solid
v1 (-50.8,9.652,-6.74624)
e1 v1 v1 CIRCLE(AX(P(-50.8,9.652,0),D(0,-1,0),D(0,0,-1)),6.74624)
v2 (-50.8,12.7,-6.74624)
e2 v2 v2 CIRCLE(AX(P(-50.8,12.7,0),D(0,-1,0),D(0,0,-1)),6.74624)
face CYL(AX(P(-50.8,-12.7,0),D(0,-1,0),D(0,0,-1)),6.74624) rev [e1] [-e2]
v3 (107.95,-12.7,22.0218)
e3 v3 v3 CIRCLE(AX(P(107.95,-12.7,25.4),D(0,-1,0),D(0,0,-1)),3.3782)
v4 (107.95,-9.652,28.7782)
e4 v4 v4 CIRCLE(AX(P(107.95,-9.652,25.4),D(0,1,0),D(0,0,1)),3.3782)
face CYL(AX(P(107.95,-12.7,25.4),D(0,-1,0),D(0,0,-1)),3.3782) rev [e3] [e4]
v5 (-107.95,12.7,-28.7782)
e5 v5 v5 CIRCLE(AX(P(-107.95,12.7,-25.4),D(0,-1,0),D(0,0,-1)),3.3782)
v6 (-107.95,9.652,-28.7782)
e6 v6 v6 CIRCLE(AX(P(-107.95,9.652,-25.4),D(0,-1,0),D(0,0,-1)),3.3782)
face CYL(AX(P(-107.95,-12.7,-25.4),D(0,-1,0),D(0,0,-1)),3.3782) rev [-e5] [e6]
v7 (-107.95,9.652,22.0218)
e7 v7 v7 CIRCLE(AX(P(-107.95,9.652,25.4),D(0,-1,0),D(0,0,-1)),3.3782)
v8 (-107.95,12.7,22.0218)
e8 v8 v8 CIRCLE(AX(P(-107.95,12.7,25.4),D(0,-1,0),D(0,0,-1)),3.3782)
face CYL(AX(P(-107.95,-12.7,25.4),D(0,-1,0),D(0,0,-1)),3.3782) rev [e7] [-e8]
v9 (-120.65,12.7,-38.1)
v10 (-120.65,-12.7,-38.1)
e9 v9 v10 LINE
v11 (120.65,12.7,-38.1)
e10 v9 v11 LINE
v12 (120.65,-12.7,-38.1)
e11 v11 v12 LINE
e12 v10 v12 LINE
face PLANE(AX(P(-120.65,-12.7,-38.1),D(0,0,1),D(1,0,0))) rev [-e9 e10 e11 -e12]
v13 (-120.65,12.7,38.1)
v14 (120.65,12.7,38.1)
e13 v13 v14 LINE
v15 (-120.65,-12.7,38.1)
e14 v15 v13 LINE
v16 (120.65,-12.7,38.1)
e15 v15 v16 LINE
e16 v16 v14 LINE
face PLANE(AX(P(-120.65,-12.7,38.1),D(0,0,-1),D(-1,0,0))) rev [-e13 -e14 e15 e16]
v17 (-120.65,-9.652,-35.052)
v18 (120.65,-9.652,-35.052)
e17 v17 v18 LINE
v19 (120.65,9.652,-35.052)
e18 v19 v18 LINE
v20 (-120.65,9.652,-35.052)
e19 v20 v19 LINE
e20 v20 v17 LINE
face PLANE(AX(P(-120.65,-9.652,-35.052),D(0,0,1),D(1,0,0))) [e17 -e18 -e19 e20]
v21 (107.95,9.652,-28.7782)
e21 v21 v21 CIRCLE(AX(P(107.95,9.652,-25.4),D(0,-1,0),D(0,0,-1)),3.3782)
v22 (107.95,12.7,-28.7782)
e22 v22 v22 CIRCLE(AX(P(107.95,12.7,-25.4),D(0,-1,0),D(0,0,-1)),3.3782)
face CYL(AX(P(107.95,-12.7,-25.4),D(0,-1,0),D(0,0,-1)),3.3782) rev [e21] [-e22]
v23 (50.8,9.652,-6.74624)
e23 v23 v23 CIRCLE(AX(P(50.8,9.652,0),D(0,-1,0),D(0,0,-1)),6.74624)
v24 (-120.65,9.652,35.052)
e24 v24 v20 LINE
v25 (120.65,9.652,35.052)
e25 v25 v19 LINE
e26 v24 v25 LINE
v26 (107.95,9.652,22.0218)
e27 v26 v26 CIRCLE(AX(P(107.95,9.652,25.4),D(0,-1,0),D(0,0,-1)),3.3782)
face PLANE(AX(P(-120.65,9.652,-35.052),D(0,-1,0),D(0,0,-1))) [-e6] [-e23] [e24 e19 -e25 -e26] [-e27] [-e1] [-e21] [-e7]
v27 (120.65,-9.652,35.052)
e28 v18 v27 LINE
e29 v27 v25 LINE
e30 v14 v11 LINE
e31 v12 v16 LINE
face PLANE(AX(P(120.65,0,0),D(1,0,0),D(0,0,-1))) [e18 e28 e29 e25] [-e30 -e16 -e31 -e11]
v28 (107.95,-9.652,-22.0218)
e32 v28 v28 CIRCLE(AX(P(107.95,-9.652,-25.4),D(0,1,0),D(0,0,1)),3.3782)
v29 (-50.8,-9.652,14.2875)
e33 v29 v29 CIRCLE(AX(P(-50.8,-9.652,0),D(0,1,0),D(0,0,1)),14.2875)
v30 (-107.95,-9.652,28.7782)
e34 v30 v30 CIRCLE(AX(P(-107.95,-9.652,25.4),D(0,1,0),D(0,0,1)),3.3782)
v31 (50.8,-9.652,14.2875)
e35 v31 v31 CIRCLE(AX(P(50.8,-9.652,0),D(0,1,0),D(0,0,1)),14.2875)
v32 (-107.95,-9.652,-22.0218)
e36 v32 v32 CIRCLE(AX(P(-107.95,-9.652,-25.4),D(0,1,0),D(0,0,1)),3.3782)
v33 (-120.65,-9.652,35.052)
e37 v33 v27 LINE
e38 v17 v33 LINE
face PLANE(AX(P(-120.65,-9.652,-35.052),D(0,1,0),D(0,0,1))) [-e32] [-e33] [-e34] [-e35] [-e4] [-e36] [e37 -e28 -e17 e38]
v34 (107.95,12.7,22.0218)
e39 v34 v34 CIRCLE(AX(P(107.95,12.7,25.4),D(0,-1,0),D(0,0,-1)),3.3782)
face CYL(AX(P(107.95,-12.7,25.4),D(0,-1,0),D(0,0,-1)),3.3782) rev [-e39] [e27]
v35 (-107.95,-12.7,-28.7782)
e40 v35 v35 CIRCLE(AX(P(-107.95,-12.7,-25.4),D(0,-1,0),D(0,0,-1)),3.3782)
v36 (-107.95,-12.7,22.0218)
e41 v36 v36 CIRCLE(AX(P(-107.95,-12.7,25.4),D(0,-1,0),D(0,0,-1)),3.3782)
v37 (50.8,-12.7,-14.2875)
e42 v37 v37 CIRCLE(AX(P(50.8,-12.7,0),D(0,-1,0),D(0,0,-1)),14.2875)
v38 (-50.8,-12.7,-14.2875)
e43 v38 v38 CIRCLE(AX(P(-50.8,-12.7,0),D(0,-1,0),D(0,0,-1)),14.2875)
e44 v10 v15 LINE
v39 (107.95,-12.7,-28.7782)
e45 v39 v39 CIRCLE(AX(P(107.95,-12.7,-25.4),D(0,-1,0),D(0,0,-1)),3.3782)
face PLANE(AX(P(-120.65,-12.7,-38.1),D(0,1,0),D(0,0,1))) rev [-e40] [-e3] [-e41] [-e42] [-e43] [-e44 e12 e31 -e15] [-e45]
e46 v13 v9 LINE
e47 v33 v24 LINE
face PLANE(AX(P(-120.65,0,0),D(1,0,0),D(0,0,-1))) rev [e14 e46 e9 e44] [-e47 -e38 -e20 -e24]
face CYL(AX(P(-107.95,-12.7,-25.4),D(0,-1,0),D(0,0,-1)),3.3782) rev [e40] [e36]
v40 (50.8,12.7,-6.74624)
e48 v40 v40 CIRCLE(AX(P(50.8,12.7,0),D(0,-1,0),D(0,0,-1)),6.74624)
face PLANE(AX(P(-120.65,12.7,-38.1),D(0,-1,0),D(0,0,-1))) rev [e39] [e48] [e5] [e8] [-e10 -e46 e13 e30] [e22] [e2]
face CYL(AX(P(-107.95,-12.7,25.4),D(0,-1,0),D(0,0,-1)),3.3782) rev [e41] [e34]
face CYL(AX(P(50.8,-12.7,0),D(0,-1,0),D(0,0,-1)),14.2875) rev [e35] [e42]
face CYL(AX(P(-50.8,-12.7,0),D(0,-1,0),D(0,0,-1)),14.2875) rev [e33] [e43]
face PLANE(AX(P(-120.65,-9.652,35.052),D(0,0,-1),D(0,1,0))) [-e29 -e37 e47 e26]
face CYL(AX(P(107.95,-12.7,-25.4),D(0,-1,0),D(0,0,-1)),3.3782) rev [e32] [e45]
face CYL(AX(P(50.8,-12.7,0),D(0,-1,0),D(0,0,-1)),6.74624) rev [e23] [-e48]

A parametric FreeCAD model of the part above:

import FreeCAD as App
import Part
import Sketcher
from FreeCAD import Vector
Q = App.Units.Quantity

doc = App.newDocument("Part")
body = doc.addObject("PartDesign::Body", "Body")

sketch1 = body.newObject("Sketcher::SketchObject", "Sketch")
sketch1.AttachmentSupport = (doc.getObject("YZ_Plane"), [""])
sketch1.MapMode = "FlatFace"
sketch1.AttachmentOffset = App.Placement(Vector(0, 0, 4.75 * 25.4), App.Rotation())
sketch1.addGeometry(Part.LineSegment(Vector(12.7, -38.1, 0), Vector(-12.7, -38.1, 0)), False)
sketch1.addGeometry(Part.LineSegment(Vector(-12.7, -38.1, 0), Vector(-12.7, 38.1, 0)), False)
sketch1.addGeometry(Part.LineSegment(Vector(-12.7, 38.1, 0), Vector(12.7, 38.1, 0)), False)
sketch1.addGeometry(Part.LineSegment(Vector(12.7, 38.1, 0), Vector(12.7, -38.1, 0)), False)
sketch1.addGeometry(Part.LineSegment(Vector(-9.652, 35.052, 0), Vector(-9.652, -35.052, 0)), False)
sketch1.addGeometry(Part.LineSegment(Vector(-9.652, -35.052, 0), Vector(9.652, -35.052, 0)), False)
sketch1.addGeometry(Part.LineSegment(Vector(9.652, -35.052, 0), Vector(9.652, 35.052, 0)), False)
sketch1.addGeometry(Part.LineSegment(Vector(9.652, 35.052, 0), Vector(-9.652, 35.052, 0)), False)
sketch1.addConstraint(Sketcher.Constraint("Coincident", 0, 2, 1, 1))
sketch1.addConstraint(Sketcher.Constraint("Coincident", 1, 2, 2, 1))
sketch1.addConstraint(Sketcher.Constraint("Coincident", 2, 2, 3, 1))
sketch1.addConstraint(Sketcher.Constraint("Coincident", 3, 2, 0, 1))
sketch1.addConstraint(Sketcher.Constraint("Coincident", 4, 2, 5, 1))
sketch1.addConstraint(Sketcher.Constraint("Coincident", 5, 2, 6, 1))
sketch1.addConstraint(Sketcher.Constraint("Coincident", 6, 2, 7, 1))
sketch1.addConstraint(Sketcher.Constraint("Coincident", 7, 2, 4, 1))
sketch1.addConstraint(Sketcher.Constraint("Horizontal", 0))
sketch1.addConstraint(Sketcher.Constraint("Vertical", 1))
sketch1.addConstraint(Sketcher.Constraint("Horizontal", 2))
sketch1.addConstraint(Sketcher.Constraint("Vertical", 3))
sketch1.addConstraint(Sketcher.Constraint("Vertical", 4))
sketch1.addConstraint(Sketcher.Constraint("Horizontal", 5))
sketch1.addConstraint(Sketcher.Constraint("Vertical", 6))
sketch1.addConstraint(Sketcher.Constraint("Horizontal", 7))
sketch1.addConstraint(Sketcher.Constraint("Symmetric", 0, 2, 2, 2, -1, 1))
sketch1.addConstraint(Sketcher.Constraint("Symmetric", 4, 2, 6, 2, -1, 1))
sketch1.addConstraint(Sketcher.Constraint("DistanceX", 0, 2, 0, 1, Q("1 in")))
sketch1.addConstraint(Sketcher.Constraint("DistanceY", 1, 1, 1, 2, Q("3 in")))
sketch1.addConstraint(Sketcher.Constraint("DistanceX", 5, 1, 5, 2, Q("0.76 in")))
sketch1.addConstraint(Sketcher.Constraint("DistanceY", 4, 2, 4, 1, Q("2.76 in")))
pad1 = body.newObject("PartDesign::Pad", "Pad")
pad1.Profile = sketch1
pad1.Length = Q("9.5 in")
pad1.Reversed = True

sketch2 = body.newObject("Sketcher::SketchObject", "Sketch001")
sketch2.AttachmentSupport = (doc.getObject("XZ_Plane"), [""])
sketch2.MapMode = "FlatFace"
sketch2.AttachmentOffset = App.Placement(Vector(0, 0, 0.5 * 25.4), App.Rotation())
sketch2.addGeometry(Part.Circle(Vector(-50.8, 0, 0), Vector(0, 0, 1), 6.74624), False)
sketch2.addGeometry(Part.Circle(Vector(50.8, 0, 0), Vector(0, 0, 1), 6.74624), False)
sketch2.addConstraint(Sketcher.Constraint("Equal", 0, 1))
sketch2.addConstraint(Sketcher.Constraint("Symmetric", 0, 3, 1, 3, -1, 1))
sketch2.addConstraint(Sketcher.Constraint("PointOnObject", 0, 3, -1))
sketch2.addConstraint(Sketcher.Constraint("DistanceX", 0, 3, -1, 1, Q("2 in")))
sketch2.addConstraint(Sketcher.Constraint("Diameter", 0, Q("0.5312 in")))
doc.recompute()
hole = body.newObject("PartDesign::Hole", "Hole")
hole.Profile = sketch2
hole.ThreadType = "None"
hole.Diameter = Q("0.5312 in")
hole.DepthType = "ThroughAll"
hole.HoleCutType = "Counterbore"
hole.HoleCutDiameter = Q("1.125 in")
hole.HoleCutDepth = Q("0.125 in")

sketch3 = body.newObject("Sketcher::SketchObject", "Sketch002")
sketch3.AttachmentSupport = (doc.getObject("XZ_Plane"), [""])
sketch3.MapMode = "FlatFace"
sketch3.AttachmentOffset = App.Placement(Vector(0, 0, 0.5 * 25.4), App.Rotation())
sketch3.addGeometry(Part.Circle(Vector(-107.95, 25.4, 0), Vector(0, 0, 1), 3.3782), False)
sketch3.addGeometry(Part.Circle(Vector(-107.95, -25.4, 0), Vector(0, 0, 1), 3.3782), False)
sketch3.addGeometry(Part.Circle(Vector(107.95, -25.4, 0), Vector(0, 0, 1), 3.3782), False)
sketch3.addGeometry(Part.Circle(Vector(107.95, 25.4, 0), Vector(0, 0, 1), 3.3782), False)
sketch3.addConstraint(Sketcher.Constraint("Equal", 0, 1))
sketch3.addConstraint(Sketcher.Constraint("Equal", 1, 2))
sketch3.addConstraint(Sketcher.Constraint("Equal", 2, 3))
sketch3.addConstraint(Sketcher.Constraint("Symmetric", 0, 3, 2, 3, -1, 1))
sketch3.addConstraint(Sketcher.Constraint("Symmetric", 1, 3, 3, 3, -1, 1))
sketch3.addConstraint(Sketcher.Constraint("Symmetric", 1, 3, 2, 3, -2))
sketch3.addConstraint(Sketcher.Constraint("Diameter", 0, Q("0.266 in")))
sketch3.addConstraint(Sketcher.Constraint("DistanceY", -1, 1, 0, 3, Q("1 in")))
sketch3.addConstraint(Sketcher.Constraint("DistanceX", 1, 3, 2, 3, Q("8.5 in")))
doc.recompute()
hole2 = body.newObject("PartDesign::Hole", "Hole001")
hole2.Profile = sketch3
hole2.ThreadType = "None"
hole2.Diameter = Q("0.266 in")
hole2.DepthType = "ThroughAll"

doc.recompute()
